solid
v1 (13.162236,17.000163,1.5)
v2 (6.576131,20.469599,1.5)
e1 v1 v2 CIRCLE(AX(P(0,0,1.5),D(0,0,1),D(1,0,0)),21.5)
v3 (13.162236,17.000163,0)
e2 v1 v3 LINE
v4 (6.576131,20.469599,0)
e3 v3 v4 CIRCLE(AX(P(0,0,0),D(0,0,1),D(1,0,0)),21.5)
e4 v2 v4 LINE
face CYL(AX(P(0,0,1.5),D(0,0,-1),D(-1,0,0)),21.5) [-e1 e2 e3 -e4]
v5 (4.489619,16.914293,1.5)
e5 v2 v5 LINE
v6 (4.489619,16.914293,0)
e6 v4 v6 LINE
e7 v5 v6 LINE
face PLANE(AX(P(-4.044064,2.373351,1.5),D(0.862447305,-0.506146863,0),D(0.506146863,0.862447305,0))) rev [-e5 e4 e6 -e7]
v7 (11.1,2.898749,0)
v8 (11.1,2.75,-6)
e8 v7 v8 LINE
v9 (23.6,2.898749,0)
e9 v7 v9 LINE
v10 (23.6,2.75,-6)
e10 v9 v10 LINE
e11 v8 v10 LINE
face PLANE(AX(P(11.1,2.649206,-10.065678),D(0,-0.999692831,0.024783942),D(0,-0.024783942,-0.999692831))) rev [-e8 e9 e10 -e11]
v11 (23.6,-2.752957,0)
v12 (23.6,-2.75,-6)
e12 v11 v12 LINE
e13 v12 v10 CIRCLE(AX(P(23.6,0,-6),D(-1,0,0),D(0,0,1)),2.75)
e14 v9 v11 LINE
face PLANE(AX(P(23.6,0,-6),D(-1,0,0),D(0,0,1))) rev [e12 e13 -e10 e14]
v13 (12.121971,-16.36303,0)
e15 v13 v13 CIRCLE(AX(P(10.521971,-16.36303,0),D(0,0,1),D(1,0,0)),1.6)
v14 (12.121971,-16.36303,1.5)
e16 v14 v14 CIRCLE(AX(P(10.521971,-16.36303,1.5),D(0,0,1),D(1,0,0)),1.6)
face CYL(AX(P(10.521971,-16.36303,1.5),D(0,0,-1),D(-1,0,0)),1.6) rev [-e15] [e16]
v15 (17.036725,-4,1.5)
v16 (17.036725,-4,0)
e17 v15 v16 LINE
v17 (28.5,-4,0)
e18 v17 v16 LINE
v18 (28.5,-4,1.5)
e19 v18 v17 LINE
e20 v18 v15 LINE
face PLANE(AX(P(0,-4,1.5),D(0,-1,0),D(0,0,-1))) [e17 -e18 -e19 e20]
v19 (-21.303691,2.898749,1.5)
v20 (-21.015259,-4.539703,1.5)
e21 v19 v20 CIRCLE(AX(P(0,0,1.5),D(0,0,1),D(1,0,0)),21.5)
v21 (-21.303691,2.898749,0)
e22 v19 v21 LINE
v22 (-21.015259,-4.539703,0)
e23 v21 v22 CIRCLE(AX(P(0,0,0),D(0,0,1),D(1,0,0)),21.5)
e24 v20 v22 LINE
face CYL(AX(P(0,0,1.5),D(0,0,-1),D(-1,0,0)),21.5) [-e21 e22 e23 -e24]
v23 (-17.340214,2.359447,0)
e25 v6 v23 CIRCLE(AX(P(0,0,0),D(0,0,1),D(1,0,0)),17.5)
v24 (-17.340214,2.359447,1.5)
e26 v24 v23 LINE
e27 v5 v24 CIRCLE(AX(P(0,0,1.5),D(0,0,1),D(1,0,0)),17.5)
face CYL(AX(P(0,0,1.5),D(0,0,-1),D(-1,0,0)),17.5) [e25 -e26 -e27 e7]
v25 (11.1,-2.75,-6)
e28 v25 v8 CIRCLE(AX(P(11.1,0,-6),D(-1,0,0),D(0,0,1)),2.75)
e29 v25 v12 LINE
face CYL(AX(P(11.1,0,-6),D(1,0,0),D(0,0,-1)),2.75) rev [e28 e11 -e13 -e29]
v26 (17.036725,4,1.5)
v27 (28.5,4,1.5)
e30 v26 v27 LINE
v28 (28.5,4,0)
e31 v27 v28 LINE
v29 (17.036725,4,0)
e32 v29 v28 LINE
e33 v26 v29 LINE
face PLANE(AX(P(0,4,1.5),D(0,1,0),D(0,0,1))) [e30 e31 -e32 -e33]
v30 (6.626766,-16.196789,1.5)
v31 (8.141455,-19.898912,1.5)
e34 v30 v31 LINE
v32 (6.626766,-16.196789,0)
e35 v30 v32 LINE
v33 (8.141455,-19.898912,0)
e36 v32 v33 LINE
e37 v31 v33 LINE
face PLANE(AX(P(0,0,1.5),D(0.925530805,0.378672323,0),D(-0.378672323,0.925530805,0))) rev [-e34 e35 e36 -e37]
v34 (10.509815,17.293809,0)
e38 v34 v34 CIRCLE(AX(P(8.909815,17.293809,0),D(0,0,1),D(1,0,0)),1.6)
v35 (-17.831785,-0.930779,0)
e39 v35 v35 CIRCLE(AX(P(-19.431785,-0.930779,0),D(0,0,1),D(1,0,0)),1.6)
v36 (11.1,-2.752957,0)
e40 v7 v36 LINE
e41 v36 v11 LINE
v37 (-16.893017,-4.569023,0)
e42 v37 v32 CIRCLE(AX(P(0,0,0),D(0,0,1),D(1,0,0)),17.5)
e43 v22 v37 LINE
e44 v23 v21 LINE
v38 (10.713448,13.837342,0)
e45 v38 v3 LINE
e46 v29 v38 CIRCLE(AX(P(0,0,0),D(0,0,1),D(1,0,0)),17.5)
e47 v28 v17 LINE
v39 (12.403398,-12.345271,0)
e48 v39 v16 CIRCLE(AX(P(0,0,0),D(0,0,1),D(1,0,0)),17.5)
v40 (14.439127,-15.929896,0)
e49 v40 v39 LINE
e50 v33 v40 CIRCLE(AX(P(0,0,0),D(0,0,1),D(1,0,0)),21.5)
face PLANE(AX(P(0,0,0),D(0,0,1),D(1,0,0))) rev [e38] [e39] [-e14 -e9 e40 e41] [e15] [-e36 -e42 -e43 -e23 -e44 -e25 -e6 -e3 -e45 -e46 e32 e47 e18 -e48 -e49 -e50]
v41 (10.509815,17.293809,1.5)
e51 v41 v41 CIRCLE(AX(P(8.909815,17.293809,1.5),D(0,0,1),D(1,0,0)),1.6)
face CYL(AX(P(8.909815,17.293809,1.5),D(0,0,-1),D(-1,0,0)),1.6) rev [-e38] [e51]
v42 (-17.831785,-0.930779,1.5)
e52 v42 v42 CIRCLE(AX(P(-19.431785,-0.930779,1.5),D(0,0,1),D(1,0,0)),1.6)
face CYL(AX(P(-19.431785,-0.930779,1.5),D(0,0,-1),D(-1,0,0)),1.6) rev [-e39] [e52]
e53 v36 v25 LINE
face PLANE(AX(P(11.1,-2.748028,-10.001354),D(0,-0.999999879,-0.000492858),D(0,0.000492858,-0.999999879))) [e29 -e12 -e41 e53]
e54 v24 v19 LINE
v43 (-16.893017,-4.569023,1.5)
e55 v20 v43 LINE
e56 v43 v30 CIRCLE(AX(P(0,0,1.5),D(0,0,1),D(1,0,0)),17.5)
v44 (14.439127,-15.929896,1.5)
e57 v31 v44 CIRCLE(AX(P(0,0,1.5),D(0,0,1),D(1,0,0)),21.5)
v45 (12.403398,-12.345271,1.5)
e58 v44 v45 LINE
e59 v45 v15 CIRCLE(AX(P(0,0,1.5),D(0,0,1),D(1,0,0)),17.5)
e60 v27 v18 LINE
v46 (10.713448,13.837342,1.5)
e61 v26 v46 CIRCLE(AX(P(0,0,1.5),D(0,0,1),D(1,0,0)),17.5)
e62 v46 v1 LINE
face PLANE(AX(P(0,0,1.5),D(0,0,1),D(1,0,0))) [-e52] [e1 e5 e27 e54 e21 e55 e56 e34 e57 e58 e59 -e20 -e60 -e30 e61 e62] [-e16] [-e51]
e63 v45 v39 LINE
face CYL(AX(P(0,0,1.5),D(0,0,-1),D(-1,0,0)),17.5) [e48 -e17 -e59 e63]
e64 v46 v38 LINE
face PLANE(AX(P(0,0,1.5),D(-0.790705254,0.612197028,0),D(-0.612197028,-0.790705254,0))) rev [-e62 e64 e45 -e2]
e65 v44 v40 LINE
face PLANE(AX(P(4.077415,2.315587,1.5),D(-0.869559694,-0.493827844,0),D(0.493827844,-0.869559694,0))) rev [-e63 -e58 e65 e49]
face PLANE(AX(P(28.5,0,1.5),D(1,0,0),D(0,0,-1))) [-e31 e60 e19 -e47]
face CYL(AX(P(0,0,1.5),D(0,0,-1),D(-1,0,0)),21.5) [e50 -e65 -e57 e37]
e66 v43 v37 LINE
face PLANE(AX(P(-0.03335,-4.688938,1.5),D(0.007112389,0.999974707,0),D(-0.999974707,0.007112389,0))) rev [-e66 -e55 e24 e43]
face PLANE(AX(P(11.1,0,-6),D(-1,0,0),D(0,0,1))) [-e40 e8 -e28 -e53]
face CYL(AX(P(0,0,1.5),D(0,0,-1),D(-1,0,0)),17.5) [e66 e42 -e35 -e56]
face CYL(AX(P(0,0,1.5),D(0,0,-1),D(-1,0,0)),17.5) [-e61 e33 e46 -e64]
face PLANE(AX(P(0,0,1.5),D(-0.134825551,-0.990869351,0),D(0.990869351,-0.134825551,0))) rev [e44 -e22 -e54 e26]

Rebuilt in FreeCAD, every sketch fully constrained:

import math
import FreeCAD as App
import Part
import Sketcher

V = App.Vector

doc = App.newDocument("Part")
params = doc.addObject("Spreadsheet::Sheet", "Params")
for row, (alias, value) in enumerate([
    ("sketch1_diameter", "3.2 mm"),
    ("sketch1_radius", "21.5 mm"),
    ("sketch1_radius2", "17.5 mm"),
    ("sketch1_height", "8 mm"),
    ("pad1_length", "1.5 mm"),
    ("sketch2_radius", "2.75 mm"),
    ("sketch2_length", "6.000001 mm"),
    ("pad2_length", "12.5 mm"),
], start=1):
    params.set(f"A{row}", alias)
    params.set(f"B{row}", "=" + value)
    params.setAlias(f"B{row}", alias)

body = doc.addObject("PartDesign::Body", "Body")

sketch1 = doc.addObject("Sketcher::SketchObject", "Sketch")
body.addObject(sketch1)
sketch1.AttachmentSupport = (doc.XY_Plane, [""])
sketch1.MapMode = "FlatFace"
sketch1.addGeometry([
    Part.LineSegment(V(-17.3, 2.4, 0), V(-21.3, 2.9, 0)),
    Part.ArcOfCircle(Part.Circle(V(0, 0, 0), V(0, 0, 1), 21.5), math.radians(172.25), math.radians(192.19)),
    Part.LineSegment(V(-21, -4.5, 0), V(-16.9, -4.6, 0)),
    Part.ArcOfCircle(Part.Circle(V(0, 0, 0), V(0, 0, 1), 17.5), math.radians(-165), math.radians(-68)),
    Part.LineSegment(V(6.6, -16.2, 0), V(8.1, -19.9, 0)),
    Part.ArcOfCircle(Part.Circle(V(0, 0, 0), V(0, 0, 1), 21.5), math.radians(-67.75), math.radians(-47.81)),
    Part.LineSegment(V(14.4, -15.9, 0), V(12.4, -12.3, 0)),
    Part.ArcOfCircle(Part.Circle(V(0, 0, 0), V(0, 0, 1), 17.5), math.radians(-45), math.radians(-13)),
    Part.LineSegment(V(17, -4, 0), V(28.5, -4, 0)),
    Part.LineSegment(V(28.5, -4, 0), V(28.5, 4, 0)),
    Part.LineSegment(V(28.5, 4, 0), V(17, 4, 0)),
    Part.ArcOfCircle(Part.Circle(V(0, 0, 0), V(0, 0, 1), 17.5), math.radians(13), math.radians(52)),
    Part.LineSegment(V(10.7, 13.8, 0), V(13.2, 17, 0)),
    Part.ArcOfCircle(Part.Circle(V(0, 0, 0), V(0, 0, 1), 21.5), math.radians(52.25), math.radians(72.19)),
    Part.LineSegment(V(6.6, 20.5, 0), V(4.5, 16.9, 0)),
    Part.ArcOfCircle(Part.Circle(V(0, 0, 0), V(0, 0, 1), 17.5), math.radians(75), math.radians(172)),
    Part.Circle(V(-19.4, -0.9, 0), V(0, 0, 1), 1.6),
    Part.Circle(V(10.5, -16.4, 0), V(0, 0, 1), 1.6),
    Part.Circle(V(8.9, 17.3, 0), V(0, 0, 1), 1.6),
], False)
sketch1.addConstraint([
    Sketcher.Constraint("Coincident", 0, 2, 1, 1),
    Sketcher.Constraint("Coincident", 1, 2, 2, 1),
    Sketcher.Constraint("Coincident", 2, 2, 3, 1),
    Sketcher.Constraint("Coincident", 3, 2, 4, 1),
    Sketcher.Constraint("Coincident", 4, 2, 5, 1),
    Sketcher.Constraint("Coincident", 5, 2, 6, 1),
    Sketcher.Constraint("Coincident", 6, 2, 7, 1),
    Sketcher.Constraint("Coincident", 7, 2, 8, 1),
    Sketcher.Constraint("Coincident", 8, 2, 9, 1),
    Sketcher.Constraint("Coincident", 9, 2, 10, 1),
    Sketcher.Constraint("Coincident", 10, 2, 11, 1),
    Sketcher.Constraint("Coincident", 11, 2, 12, 1),
    Sketcher.Constraint("Coincident", 12, 2, 13, 1),
    Sketcher.Constraint("Coincident", 13, 2, 14, 1),
    Sketcher.Constraint("Coincident", 14, 2, 15, 1),
    Sketcher.Constraint("Coincident", 15, 2, 0, 1),
    Sketcher.Constraint("Horizontal", 8),
    Sketcher.Constraint("Vertical", 9),
    Sketcher.Constraint("Horizontal", 10),
    Sketcher.Constraint("Coincident", 1, 3, -1, 1),
    Sketcher.Constraint("Coincident", 3, 3, -1, 1),
    Sketcher.Constraint("Coincident", 5, 3, -1, 1),
    Sketcher.Constraint("Coincident", 7, 3, -1, 1),
    Sketcher.Constraint("Coincident", 11, 3, -1, 1),
    Sketcher.Constraint("Coincident", 13, 3, -1, 1),
    Sketcher.Constraint("Coincident", 15, 3, -1, 1),
    Sketcher.Constraint("Equal", 1, 5),
    Sketcher.Constraint("Equal", 3, 7),
    Sketcher.Constraint("Equal", 7, 11),
    Sketcher.Constraint("Equal", 5, 13),
    Sketcher.Constraint("Equal", 11, 15),
    Sketcher.Constraint("Equal", 16, 17),
    Sketcher.Constraint("Equal", 17, 18),
    Sketcher.Constraint("Vertical", 7, 2, 10, 2),
    Sketcher.Constraint("Equal", 2, 6),
    Sketcher.Constraint("Equal", 6, 14),
    Sketcher.Constraint("Diameter", 16, 3.2),
    Sketcher.Constraint("Radius", 1, 21.5),
    Sketcher.Constraint("Radius", 3, 17.5),
    Sketcher.Constraint("DistanceY", 9, 1, 9, 2, 8.0),
    Sketcher.Constraint("DistanceX", -1, 1, 8, 2, 28.5),
    Sketcher.Constraint("DistanceX", -1, 1, 6, 2, 12.403398),
    Sketcher.Constraint("DistanceY", -1, 1, 13, 2, 20.469599),
    Sketcher.Constraint("DistanceY", 16, 3, -1, 1, 0.930779),
    Sketcher.Constraint("DistanceX", -1, 1, 17, 3, 10.521971),
    Sketcher.Constraint("DistanceY", 17, 3, -1, 1, 16.36303),
    Sketcher.Constraint("DistanceY", -1, 1, 18, 3, 17.293809),
    Sketcher.Constraint("DistanceX", 0, 2, -1, 1, 21.303691),
    Sketcher.Constraint("DistanceX", 1, 2, -1, 1, 21.015259),
    Sketcher.Constraint("DistanceY", 3, 2, -1, 1, 16.196789),
    Sketcher.Constraint("DistanceY", -1, 1, 11, 2, 13.837342),
    Sketcher.Constraint("DistanceX", -1, 1, 14, 2, 4.489619),
    Sketcher.Constraint("DistanceX", 3, 2, 4, 2, 1.514689),
    Sketcher.Constraint("DistanceX", 18, 3, 10, 2, 8.12691),
    Sketcher.Constraint("DistanceX", 11, 2, 12, 2, 2.448788),
    Sketcher.Constraint("DistanceX", 16, 3, 15, 2, 2.091571),
    Sketcher.Constraint("DistanceY", 2, 2, 15, 2, 6.92847),
])
sketch1.setExpression("Constraints[36]", "Params.sketch1_diameter")
sketch1.setExpression("Constraints[37]", "Params.sketch1_radius")
sketch1.setExpression("Constraints[38]", "Params.sketch1_radius2")
sketch1.setExpression("Constraints[39]", "Params.sketch1_height")
pad1 = doc.addObject("PartDesign::Pad", "Pad")
body.addObject(pad1)
pad1.Profile = sketch1
pad1.setExpression("Length", "Params.pad1_length")

sketch2 = doc.addObject("Sketcher::SketchObject", "Sketch001")
body.addObject(sketch2)
sketch2.AttachmentSupport = (doc.YZ_Plane, [""])
sketch2.MapMode = "FlatFace"
sketch2.AttachmentOffset = App.Placement(V(0, 0, 23.6), App.Rotation())
sketch2.addGeometry([
    Part.ArcOfCircle(Part.Circle(V(0, -6, 0), V(0, 0, 1), 2.8), math.radians(0), math.radians(180)),
    Part.LineSegment(V(2.8, -6, 0), V(2.9, 0, 0)),
    Part.LineSegment(V(2.9, 0, 0), V(-2.8, 0, 0)),
    Part.LineSegment(V(-2.8, 0, 0), V(-2.8, -6, 0)),
], False)
sketch2.addConstraint([
    Sketcher.Constraint("Coincident", 0, 1, 1, 1),
    Sketcher.Constraint("Coincident", 1, 2, 2, 1),
    Sketcher.Constraint("Coincident", 2, 2, 3, 1),
    Sketcher.Constraint("Coincident", 3, 2, 0, 2),
    Sketcher.Constraint("Horizontal", 2),
    Sketcher.Constraint("Symmetric", 0, 1, 3, 2, -2),
    Sketcher.Constraint("PointOnObject", 1, 2, -1),
    Sketcher.Constraint("Radius", 0, 2.75),
    Sketcher.Constraint("Distance", 3, 6.000001),
    Sketcher.Constraint("DistanceY", 0, 3, -1, 1, 6.0),
    Sketcher.Constraint("DistanceX", 2, 2, 2, 1, 5.651706),
    Sketcher.Constraint("DistanceX", -1, 1, 1, 2, 2.898749),
])
sketch2.setExpression("Constraints[7]", "Params.sketch2_radius")
sketch2.setExpression("Constraints[8]", "Params.sketch2_length")
pad2 = doc.addObject("PartDesign::Pad", "Pad001")
body.addObject(pad2)
pad2.Profile = sketch2
pad2.setExpression("Length", "Params.pad2_length")
pad2.Reversed = True

doc.recompute()
